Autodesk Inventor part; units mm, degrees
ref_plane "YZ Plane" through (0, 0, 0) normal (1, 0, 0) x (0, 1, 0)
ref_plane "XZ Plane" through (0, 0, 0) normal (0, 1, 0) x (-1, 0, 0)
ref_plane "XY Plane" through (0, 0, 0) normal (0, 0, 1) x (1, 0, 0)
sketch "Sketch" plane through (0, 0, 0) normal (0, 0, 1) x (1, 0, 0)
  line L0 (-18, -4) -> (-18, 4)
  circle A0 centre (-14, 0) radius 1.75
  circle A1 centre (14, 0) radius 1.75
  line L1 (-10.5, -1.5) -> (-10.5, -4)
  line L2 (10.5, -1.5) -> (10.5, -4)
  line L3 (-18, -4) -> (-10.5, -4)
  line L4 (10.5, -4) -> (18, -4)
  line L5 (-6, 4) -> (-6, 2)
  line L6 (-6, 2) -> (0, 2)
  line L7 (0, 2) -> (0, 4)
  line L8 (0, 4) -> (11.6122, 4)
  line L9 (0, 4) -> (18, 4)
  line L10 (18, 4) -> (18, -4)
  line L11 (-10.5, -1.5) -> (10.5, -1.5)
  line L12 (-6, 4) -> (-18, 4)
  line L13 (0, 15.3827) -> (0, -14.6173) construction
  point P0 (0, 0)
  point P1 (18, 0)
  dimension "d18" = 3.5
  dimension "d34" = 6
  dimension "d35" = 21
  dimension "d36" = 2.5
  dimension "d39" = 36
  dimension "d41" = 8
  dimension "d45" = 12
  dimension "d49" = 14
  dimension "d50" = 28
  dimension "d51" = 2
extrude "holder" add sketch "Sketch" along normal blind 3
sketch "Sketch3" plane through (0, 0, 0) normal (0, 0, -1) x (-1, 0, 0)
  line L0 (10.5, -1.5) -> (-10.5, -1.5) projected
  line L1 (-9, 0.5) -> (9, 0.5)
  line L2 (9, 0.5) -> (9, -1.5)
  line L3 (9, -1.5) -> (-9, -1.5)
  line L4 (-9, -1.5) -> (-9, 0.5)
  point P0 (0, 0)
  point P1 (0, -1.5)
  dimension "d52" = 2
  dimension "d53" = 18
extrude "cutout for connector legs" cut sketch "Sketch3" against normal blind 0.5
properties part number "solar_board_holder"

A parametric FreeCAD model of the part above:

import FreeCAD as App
import Part
import Sketcher

V = App.Vector


def add_polygon(sketch, points):
    """Adds a closed chain of lines whose ends are joined by coincident constraints."""
    first, n = sketch.GeometryCount, len(points)
    for a, b in zip(points, points[1:] + points[:1]):
        sketch.addGeometry(Part.LineSegment(App.Vector(*a, 0), App.Vector(*b, 0)), False)
    for i in range(n):
        sketch.addConstraint(Sketcher.Constraint("Coincident", first + i, 2, first + (i + 1) % n, 1))

doc = App.newDocument("Part")
params = doc.addObject("Spreadsheet::Sheet", "Params")
for row, (alias, value) in enumerate([
    ("sketch1_diameter", "3.5 mm"),
    ("sketch1_width", "21 mm"),
    ("sketch1_width2", "6 mm"),
    ("sketch1_width3", "12 mm"),
    ("sketch1_height", "8 mm"),
    ("pad1_length", "3 mm"),
    ("sketch2_width", "18 mm"),
    ("sketch2_height", "2 mm"),
    ("pocket1_length", "0.5 mm"),
], start=1):
    params.set(f"A{row}", alias)
    params.set(f"B{row}", "=" + value)
    params.setAlias(f"B{row}", alias)

body = doc.addObject("PartDesign::Body", "Body")

# Sketch on XY plane
sketch1 = body.newObject("Sketcher::SketchObject", "Sketch")
sketch1.AttachmentSupport = (doc.getObject("XY_Plane"), [""])
sketch1.MapMode = "FlatFace"
add_polygon(sketch1, [(-18, 4), (-18, -4), (-10.5, -4), (-10.5, -1.5), (10.5, -1.5), (10.5, -4), (18, -4), (18, 4), (0, 4), (0, 2), (-6, 2), (-6, 4)])  # lines 0-11
sketch1.addGeometry(Part.Circle(V(-14, 0, 0), V(0, 0, 1), 1.8), False)  # 12
sketch1.addGeometry(Part.Circle(V(14, 0, 0), V(0, 0, 1), 1.8), False)  # 13
sketch1.addConstraint([
    Sketcher.Constraint("Vertical", 0),
    Sketcher.Constraint("Horizontal", 1),
    Sketcher.Constraint("Vertical", 2),
    Sketcher.Constraint("Horizontal", 3),
    Sketcher.Constraint("Vertical", 4),
    Sketcher.Constraint("Horizontal", 5),
    Sketcher.Constraint("Vertical", 6),
    Sketcher.Constraint("Horizontal", 7),
    Sketcher.Constraint("Vertical", 8),
    Sketcher.Constraint("Horizontal", 9),
    Sketcher.Constraint("Vertical", 10),
    Sketcher.Constraint("Horizontal", 11),
    Sketcher.Constraint("Equal", 12, 13),
    Sketcher.Constraint("Symmetric", 12, 3, 13, 3, -1, 1),
    Sketcher.Constraint("Symmetric", 0, 2, 6, 2, -1, 1),
    Sketcher.Constraint("Symmetric", 1, 2, 4, 2, -2),
    Sketcher.Constraint("PointOnObject", 12, 3, -1),
    Sketcher.Constraint("PointOnObject", 7, 2, -2),
    Sketcher.Constraint("Horizontal", 7, 2, 10, 2),
    Sketcher.Constraint("Diameter", 12, 3.5),
    Sketcher.Constraint("DistanceX", 3, 1, 3, 2, 21.0),
    Sketcher.Constraint("DistanceX", 9, 2, 9, 1, 6.0),
    Sketcher.Constraint("DistanceX", 11, 2, 11, 1, 12.0),
    Sketcher.Constraint("DistanceY", 0, 2, 0, 1, 8.0),
    Sketcher.Constraint("DistanceY", 8, 2, 8, 1, 2.0),
    Sketcher.Constraint("DistanceY", 2, 1, 2, 2, 2.5),
    Sketcher.Constraint("DistanceX", 12, 3, -1, 1, 14.0),
])
sketch1.setExpression("Constraints[31]", "Params.sketch1_diameter")
sketch1.setExpression("Constraints[32]", "Params.sketch1_width")
sketch1.setExpression("Constraints[33]", "Params.sketch1_width2")
sketch1.setExpression("Constraints[34]", "Params.sketch1_width3")
sketch1.setExpression("Constraints[35]", "Params.sketch1_height")
pad1 = body.newObject("PartDesign::Pad", "Pad")
pad1.Profile = sketch1
pad1.setExpression("Length", "Params.pad1_length")

# Sketch on XY plane
sketch2 = body.newObject("Sketcher::SketchObject", "Sketch001")
sketch2.AttachmentSupport = (doc.getObject("XY_Plane"), [""])
sketch2.MapMode = "FlatFace"
add_polygon(sketch2, [(9, -1.5), (-9, -1.5), (-9, 0.5), (9, 0.5)])  # lines 0-3
sketch2.addConstraint([
    Sketcher.Constraint("Horizontal", 0),
    Sketcher.Constraint("Vertical", 1),
    Sketcher.Constraint("Horizontal", 2),
    Sketcher.Constraint("Vertical", 3),
    Sketcher.Constraint("DistanceX", 0, 2, 0, 1, 18.0),
    Sketcher.Constraint("DistanceY", 1, 1, 1, 2, 2.0),
    Sketcher.Constraint("DistanceX", 0, 2, -1, 1, 9.0),
    Sketcher.Constraint("DistanceY", 0, 2, -1, 1, 1.5),
])
sketch2.setExpression("Constraints[8]", "Params.sketch2_width")
sketch2.setExpression("Constraints[9]", "Params.sketch2_height")
pocket1 = body.newObject("PartDesign::Pocket", "Pocket")
pocket1.Profile = sketch2
pocket1.setExpression("Length", "Params.pocket1_length")
pocket1.Reversed = True

doc.recompute()
